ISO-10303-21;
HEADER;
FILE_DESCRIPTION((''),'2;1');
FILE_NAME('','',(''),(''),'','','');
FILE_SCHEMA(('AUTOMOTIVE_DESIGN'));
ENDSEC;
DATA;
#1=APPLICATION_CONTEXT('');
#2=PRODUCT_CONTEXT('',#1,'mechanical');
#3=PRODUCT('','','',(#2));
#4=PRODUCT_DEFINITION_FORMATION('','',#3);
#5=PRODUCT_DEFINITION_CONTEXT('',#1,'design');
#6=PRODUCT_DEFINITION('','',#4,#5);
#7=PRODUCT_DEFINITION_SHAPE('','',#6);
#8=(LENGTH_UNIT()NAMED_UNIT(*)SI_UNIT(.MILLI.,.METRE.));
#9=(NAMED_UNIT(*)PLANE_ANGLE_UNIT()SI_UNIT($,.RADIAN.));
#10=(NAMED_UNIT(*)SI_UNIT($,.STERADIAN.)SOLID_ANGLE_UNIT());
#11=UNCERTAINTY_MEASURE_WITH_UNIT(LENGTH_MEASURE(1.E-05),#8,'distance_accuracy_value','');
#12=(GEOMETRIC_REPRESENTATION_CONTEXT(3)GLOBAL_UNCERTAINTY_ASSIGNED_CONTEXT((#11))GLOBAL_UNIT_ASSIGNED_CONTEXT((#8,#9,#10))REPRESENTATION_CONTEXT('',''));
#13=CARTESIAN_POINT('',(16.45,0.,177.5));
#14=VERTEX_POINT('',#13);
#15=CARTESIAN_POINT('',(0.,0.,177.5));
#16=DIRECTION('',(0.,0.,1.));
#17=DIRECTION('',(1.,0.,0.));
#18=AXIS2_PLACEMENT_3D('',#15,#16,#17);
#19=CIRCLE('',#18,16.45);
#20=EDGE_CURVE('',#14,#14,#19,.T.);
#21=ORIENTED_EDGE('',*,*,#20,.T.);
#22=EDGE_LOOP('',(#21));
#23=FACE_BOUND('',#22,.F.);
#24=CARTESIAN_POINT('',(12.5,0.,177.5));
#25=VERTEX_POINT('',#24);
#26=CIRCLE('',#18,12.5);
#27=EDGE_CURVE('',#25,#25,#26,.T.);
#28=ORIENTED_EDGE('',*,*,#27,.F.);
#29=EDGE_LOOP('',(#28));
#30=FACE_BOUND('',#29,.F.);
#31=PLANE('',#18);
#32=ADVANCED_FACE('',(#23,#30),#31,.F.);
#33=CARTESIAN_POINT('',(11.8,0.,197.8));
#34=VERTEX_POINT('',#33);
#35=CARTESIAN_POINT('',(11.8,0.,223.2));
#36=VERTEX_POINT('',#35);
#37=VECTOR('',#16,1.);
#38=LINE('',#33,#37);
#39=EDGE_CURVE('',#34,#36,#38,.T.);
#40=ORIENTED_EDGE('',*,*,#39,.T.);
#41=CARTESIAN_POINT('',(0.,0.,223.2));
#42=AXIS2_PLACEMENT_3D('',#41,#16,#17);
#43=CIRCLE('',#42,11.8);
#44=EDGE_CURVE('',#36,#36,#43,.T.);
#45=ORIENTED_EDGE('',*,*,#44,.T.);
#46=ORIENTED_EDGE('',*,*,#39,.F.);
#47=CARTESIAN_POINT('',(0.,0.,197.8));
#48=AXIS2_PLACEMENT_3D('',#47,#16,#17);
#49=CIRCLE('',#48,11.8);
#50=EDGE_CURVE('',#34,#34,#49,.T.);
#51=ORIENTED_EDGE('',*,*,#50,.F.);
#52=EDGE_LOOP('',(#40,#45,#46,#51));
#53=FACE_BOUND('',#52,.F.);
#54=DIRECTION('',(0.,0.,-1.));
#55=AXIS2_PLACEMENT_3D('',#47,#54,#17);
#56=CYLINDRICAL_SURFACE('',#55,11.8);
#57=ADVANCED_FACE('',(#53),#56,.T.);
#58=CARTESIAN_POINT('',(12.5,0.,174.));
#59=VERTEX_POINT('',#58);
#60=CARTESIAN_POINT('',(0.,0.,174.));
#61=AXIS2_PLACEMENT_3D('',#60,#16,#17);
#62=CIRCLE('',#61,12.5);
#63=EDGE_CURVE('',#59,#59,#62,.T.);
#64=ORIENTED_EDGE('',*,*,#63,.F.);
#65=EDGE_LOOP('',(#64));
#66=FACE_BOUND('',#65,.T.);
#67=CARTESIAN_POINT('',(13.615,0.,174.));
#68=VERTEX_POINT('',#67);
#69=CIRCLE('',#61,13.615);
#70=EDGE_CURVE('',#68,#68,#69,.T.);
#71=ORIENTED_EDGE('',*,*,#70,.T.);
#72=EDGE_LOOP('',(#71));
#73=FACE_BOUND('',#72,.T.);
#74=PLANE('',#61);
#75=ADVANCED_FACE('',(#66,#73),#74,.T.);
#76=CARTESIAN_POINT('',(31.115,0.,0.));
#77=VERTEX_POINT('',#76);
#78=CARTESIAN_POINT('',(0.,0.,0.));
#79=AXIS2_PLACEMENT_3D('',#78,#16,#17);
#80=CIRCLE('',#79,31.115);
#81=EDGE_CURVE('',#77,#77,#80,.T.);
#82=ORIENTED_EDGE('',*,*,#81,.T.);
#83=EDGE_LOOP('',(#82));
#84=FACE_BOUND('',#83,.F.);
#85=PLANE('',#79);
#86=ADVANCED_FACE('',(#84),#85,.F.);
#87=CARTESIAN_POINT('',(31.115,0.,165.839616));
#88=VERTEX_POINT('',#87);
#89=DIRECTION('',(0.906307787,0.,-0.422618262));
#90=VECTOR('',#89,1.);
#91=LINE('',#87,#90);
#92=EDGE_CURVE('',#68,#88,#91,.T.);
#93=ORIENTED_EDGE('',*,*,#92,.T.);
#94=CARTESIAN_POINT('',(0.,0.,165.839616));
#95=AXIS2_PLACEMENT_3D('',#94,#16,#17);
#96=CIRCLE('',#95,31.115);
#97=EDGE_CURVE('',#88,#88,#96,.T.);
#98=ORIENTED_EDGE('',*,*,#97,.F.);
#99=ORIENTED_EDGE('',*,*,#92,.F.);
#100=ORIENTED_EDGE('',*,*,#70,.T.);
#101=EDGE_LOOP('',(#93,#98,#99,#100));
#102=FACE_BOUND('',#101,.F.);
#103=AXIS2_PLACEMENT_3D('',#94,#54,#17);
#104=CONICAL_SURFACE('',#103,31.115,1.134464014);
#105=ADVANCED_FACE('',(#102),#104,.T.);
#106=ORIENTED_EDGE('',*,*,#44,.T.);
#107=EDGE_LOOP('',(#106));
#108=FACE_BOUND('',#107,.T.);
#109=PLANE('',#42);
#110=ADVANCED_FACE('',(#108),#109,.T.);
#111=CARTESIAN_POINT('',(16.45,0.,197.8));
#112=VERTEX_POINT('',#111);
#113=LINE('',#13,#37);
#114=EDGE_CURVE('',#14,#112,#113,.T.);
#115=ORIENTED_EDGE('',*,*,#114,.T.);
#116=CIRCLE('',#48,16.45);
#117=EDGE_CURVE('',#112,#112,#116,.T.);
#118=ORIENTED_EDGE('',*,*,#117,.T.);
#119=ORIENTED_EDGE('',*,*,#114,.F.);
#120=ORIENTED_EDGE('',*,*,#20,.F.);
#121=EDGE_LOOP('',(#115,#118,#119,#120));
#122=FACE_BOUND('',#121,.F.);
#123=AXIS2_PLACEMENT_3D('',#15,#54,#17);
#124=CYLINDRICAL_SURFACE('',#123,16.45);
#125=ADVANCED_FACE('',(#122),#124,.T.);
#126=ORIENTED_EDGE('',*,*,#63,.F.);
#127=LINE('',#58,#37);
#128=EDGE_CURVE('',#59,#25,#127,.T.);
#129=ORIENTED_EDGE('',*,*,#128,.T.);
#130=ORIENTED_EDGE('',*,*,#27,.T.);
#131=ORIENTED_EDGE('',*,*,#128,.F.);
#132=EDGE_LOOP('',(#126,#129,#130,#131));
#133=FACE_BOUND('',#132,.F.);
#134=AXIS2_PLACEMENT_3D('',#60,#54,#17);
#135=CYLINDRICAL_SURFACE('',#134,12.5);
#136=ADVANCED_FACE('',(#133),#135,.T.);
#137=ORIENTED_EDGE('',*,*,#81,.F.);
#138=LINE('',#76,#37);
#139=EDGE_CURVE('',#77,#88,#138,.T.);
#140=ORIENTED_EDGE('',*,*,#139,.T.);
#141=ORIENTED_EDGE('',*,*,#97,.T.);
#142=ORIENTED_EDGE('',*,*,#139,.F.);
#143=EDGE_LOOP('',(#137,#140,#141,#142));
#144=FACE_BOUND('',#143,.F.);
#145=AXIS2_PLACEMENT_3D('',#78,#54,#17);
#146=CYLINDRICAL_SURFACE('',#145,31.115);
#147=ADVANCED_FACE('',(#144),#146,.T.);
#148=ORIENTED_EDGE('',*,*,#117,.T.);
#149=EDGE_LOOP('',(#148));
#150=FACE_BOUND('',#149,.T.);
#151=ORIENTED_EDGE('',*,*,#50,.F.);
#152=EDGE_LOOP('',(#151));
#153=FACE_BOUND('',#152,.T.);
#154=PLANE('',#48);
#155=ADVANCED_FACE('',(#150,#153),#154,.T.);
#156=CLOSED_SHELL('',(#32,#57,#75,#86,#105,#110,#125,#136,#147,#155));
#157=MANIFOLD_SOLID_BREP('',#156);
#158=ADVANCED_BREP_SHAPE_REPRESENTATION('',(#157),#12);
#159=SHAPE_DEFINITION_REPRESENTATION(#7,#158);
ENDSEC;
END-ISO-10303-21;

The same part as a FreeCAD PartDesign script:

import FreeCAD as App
import Part
import Sketcher

V = App.Vector


def edges_at(feature, points):
    """Names of the edges that pass closest to the given points."""
    edges = feature.Shape.Edges
    near = lambda p: min(range(len(edges)), key=lambda i: edges[i].distToShape(Part.Vertex(*p))[0])
    return sorted({f"Edge{near(p) + 1}" for p in points})

doc = App.newDocument("Part")
body = doc.addObject("PartDesign::Body", "Body")

# Sketch on XY plane
sketch1 = body.newObject("Sketcher::SketchObject", "Sketch")
sketch1.AttachmentSupport = (doc.getObject("XY_Plane"), [""])
sketch1.MapMode = "FlatFace"
sketch1.addGeometry(Part.Circle(V(0, 0, 0), V(0, 0, 1), 31), False)
sketch1.addConstraint([
    Sketcher.Constraint("Coincident", 0, 3, -1, 1),
    Sketcher.Constraint("Diameter", 0, 62.23),
])
pad1 = body.newObject("PartDesign::Pad", "Pad")
pad1.Profile = sketch1
pad1.Length = 174
doc.recompute()

chamfer = body.newObject("PartDesign::Chamfer", "Chamfer")
chamfer.Base = (pad1, edges_at(pad1, [(-31.115, 0, 174)]))
chamfer.ChamferType = "Two distances"
chamfer.Size = 17.5
chamfer.Size2 = 8.160384
chamfer.FlipDirection = True

# Sketch on XY plane
sketch2 = body.newObject("Sketcher::SketchObject", "Sketch001")
sketch2.AttachmentSupport = (doc.getObject("XY_Plane"), [""])
sketch2.MapMode = "FlatFace"
sketch2.AttachmentOffset = App.Placement(V(0, 0, 174), App.Rotation())
sketch2.addGeometry(Part.Circle(V(0, 0, 0), V(0, 0, 1), 12), False)
sketch2.addConstraint([
    Sketcher.Constraint("Coincident", 0, 3, -1, 1),
    Sketcher.Constraint("Diameter", 0, 25.0),
])
pad2 = body.newObject("PartDesign::Pad", "Pad001")
pad2.Profile = sketch2
pad2.Length = 3.5

# Sketch on XY plane
sketch3 = body.newObject("Sketcher::SketchObject", "Sketch002")
sketch3.AttachmentSupport = (doc.getObject("XY_Plane"), [""])
sketch3.MapMode = "FlatFace"
sketch3.AttachmentOffset = App.Placement(V(0, 0, 177.5), App.Rotation())
sketch3.addGeometry(Part.Circle(V(0, 0, 0), V(0, 0, 1), 16), False)
sketch3.addConstraint([
    Sketcher.Constraint("Coincident", 0, 3, -1, 1),
    Sketcher.Constraint("Diameter", 0, 32.9),
])
pad3 = body.newObject("PartDesign::Pad", "Pad002")
pad3.Profile = sketch3
pad3.Length = 20.3

# Sketch on XY plane
sketch4 = body.newObject("Sketcher::SketchObject", "Sketch003")
sketch4.AttachmentSupport = (doc.getObject("XY_Plane"), [""])
sketch4.MapMode = "FlatFace"
sketch4.AttachmentOffset = App.Placement(V(0, 0, 197.8), App.Rotation())
sketch4.addGeometry(Part.Circle(V(0, 0, 0), V(0, 0, 1), 12), False)
sketch4.addConstraint([
    Sketcher.Constraint("Coincident", 0, 3, -1, 1),
    Sketcher.Constraint("Diameter", 0, 23.6),
])
pad4 = body.newObject("PartDesign::Pad", "Pad003")
pad4.Profile = sketch4
pad4.Length = 25.4

doc.recompute()
